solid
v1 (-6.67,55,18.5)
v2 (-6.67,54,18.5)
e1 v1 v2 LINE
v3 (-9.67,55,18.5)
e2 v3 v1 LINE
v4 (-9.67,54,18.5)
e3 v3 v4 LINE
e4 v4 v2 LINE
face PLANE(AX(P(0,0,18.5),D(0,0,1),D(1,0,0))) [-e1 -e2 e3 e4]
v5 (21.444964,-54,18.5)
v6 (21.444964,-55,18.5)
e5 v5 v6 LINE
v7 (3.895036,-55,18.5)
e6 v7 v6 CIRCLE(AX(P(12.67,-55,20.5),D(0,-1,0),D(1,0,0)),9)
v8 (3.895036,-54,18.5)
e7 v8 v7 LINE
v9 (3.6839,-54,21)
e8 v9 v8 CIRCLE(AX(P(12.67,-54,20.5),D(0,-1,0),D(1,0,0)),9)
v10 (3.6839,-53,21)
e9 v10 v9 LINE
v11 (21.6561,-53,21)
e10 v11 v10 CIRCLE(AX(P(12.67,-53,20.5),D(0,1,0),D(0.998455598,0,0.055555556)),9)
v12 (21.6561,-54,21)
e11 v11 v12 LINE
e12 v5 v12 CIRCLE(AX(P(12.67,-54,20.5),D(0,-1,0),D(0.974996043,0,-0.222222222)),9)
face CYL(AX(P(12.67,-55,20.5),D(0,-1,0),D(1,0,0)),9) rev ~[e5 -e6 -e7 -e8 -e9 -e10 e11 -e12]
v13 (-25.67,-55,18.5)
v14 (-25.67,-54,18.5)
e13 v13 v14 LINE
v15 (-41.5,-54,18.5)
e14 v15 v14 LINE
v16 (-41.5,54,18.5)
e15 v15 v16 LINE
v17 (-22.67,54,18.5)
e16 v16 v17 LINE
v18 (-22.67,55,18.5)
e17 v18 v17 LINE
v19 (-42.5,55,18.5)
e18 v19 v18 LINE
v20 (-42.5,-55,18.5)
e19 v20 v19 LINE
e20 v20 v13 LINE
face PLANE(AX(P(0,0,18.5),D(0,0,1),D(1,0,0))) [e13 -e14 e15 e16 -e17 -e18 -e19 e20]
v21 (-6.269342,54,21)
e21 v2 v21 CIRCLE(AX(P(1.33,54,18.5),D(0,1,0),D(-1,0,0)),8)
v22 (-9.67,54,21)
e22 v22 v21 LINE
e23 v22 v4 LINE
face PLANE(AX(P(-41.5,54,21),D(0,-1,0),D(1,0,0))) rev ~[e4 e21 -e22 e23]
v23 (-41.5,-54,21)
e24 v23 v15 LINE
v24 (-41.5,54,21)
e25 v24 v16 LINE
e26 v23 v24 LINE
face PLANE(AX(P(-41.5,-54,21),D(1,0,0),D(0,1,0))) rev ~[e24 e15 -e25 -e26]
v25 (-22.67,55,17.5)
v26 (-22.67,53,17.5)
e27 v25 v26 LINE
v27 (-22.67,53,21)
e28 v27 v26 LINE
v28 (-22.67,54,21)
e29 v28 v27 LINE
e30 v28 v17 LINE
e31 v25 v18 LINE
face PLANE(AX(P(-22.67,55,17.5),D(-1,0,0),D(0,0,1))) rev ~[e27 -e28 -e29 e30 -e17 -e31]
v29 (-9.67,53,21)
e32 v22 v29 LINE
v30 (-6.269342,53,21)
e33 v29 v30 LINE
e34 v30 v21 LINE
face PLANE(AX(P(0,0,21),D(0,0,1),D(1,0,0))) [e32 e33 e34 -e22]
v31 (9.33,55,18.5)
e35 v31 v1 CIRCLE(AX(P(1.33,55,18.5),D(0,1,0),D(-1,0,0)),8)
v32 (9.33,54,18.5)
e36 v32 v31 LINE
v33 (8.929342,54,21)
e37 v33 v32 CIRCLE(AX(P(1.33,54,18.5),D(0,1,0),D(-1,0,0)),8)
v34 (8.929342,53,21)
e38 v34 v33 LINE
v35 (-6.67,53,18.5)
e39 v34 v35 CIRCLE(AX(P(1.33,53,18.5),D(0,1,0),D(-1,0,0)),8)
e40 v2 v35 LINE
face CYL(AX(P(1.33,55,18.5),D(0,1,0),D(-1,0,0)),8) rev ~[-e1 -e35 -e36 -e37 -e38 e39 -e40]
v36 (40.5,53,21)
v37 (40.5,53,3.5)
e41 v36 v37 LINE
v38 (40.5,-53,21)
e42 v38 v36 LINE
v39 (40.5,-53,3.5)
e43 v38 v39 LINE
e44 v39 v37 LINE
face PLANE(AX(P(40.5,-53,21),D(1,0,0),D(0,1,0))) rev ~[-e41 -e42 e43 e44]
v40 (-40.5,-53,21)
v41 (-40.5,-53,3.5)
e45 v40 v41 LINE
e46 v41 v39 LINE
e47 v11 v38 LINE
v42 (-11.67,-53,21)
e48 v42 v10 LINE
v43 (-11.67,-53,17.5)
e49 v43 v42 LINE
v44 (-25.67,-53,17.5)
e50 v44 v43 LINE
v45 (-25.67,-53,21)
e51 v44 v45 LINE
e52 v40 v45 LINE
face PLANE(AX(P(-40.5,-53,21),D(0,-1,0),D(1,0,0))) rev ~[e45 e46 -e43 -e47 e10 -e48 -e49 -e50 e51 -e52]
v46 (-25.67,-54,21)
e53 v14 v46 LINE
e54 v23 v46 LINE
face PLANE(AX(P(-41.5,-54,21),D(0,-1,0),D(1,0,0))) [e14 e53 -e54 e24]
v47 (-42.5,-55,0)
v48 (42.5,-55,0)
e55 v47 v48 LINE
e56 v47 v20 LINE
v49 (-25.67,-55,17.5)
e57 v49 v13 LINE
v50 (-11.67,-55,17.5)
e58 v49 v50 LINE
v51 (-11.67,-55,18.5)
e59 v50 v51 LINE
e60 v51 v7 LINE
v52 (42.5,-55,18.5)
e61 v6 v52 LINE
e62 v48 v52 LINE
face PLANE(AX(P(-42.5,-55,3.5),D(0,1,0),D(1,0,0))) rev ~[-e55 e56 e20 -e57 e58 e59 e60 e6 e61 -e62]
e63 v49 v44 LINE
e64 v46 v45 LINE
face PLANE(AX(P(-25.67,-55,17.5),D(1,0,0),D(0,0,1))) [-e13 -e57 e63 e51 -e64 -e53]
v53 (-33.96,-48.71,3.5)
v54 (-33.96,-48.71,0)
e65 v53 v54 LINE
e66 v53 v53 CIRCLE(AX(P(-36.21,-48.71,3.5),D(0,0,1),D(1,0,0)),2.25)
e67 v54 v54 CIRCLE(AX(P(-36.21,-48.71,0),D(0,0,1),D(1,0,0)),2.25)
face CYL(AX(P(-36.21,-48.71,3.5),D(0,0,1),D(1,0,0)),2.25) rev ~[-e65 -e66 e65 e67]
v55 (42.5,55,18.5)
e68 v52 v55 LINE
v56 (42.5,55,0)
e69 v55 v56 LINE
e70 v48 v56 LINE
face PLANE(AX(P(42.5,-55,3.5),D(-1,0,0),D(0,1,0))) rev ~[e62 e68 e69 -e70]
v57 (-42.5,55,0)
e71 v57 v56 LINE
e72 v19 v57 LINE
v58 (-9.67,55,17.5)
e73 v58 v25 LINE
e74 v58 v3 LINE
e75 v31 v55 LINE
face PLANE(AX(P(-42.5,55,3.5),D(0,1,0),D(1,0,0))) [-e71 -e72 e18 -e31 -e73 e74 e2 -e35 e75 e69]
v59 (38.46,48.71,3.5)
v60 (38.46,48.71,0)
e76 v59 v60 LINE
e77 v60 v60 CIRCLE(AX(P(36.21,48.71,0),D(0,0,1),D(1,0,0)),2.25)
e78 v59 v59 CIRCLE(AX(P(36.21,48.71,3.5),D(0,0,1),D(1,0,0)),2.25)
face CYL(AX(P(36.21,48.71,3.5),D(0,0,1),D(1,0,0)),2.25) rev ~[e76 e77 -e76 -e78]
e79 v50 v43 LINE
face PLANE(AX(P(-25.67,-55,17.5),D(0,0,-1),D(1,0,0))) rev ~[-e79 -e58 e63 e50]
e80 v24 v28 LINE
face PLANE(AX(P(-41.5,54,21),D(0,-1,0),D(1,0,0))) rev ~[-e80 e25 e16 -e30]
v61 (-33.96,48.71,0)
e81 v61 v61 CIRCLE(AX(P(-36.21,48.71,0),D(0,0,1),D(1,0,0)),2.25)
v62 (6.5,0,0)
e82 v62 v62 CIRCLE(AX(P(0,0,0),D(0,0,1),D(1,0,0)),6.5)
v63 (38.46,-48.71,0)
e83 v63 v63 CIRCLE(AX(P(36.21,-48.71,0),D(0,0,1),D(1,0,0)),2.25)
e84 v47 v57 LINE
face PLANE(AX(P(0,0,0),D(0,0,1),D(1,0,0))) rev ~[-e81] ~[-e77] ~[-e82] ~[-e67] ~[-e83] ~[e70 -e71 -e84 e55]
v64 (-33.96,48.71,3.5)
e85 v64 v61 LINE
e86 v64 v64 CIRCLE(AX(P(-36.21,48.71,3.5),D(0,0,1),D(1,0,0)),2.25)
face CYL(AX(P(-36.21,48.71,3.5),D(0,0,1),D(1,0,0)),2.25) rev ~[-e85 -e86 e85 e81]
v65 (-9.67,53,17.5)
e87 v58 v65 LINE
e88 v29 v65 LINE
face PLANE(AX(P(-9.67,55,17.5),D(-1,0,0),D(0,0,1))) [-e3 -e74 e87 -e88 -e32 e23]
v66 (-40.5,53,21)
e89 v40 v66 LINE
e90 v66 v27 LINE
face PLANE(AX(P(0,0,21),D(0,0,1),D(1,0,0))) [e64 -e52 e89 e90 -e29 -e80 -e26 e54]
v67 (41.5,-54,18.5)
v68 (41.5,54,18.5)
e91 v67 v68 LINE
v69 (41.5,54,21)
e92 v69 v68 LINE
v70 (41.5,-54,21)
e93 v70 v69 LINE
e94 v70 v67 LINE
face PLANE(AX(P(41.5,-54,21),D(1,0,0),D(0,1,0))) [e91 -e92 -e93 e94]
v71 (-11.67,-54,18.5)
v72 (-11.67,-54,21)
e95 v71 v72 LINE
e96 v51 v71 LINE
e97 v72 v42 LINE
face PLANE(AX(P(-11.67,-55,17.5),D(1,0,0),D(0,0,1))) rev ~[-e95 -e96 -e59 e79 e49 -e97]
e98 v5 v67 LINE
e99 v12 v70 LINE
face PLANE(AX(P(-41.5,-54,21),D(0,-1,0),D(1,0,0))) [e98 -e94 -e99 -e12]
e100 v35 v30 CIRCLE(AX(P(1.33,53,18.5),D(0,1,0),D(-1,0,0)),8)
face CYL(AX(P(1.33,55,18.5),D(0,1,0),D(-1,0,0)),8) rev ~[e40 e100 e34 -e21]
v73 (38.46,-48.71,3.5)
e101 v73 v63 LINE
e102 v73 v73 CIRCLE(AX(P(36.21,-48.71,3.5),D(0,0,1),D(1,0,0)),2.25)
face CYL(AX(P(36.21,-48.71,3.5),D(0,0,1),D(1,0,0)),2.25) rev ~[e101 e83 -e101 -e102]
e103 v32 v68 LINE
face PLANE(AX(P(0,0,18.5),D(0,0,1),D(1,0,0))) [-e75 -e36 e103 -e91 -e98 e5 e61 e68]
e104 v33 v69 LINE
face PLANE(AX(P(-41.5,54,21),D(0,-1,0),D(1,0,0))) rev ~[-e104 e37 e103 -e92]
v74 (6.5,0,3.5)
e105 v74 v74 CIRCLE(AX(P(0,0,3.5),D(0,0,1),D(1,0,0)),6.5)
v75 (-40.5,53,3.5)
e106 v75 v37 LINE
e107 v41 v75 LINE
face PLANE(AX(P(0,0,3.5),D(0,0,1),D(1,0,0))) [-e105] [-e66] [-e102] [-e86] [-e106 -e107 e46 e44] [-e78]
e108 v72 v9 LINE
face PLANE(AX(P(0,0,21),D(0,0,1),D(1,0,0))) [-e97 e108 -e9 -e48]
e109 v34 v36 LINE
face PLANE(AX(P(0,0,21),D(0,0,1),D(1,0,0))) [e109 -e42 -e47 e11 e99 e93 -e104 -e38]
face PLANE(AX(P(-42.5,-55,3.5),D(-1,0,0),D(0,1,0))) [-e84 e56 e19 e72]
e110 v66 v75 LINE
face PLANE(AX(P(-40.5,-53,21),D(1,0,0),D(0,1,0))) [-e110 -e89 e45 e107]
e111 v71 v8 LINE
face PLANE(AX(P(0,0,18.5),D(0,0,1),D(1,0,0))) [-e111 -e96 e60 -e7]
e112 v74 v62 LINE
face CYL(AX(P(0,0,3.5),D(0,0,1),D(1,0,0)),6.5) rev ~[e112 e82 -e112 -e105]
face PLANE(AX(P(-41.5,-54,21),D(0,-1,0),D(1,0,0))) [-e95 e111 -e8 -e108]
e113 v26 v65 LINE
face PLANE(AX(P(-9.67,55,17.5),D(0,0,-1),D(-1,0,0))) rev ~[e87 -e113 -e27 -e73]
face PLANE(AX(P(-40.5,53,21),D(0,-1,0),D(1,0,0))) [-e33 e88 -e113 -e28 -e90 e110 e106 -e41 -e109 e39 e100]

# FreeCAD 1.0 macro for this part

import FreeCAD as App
import Part
import Sketcher


def add_polygon(sketch, points):
    """Adds a closed chain of lines whose ends are joined by coincident constraints."""
    first, n = sketch.GeometryCount, len(points)
    for a, b in zip(points, points[1:] + points[:1]):
        sketch.addGeometry(Part.LineSegment(App.Vector(*a, 0), App.Vector(*b, 0)), False)
    for i in range(n):
        sketch.addConstraint(Sketcher.Constraint("Coincident", first + i, 2, first + (i + 1) % n, 1))

doc = App.newDocument("Part")
params = doc.addObject("Spreadsheet::Sheet", "Params")
for row, (alias, value) in enumerate([
    ("sketch1_width", "85 mm"),
    ("sketch1_height", "110 mm"),
    ("pad1_length", "3.5 mm"),
    ("sketch2_width", "85 mm"),
    ("sketch2_height", "110 mm"),
    ("pad2_length", "17.5 mm"),
    ("sketch3_width", "81 mm"),
    ("sketch3_height", "106 mm"),
    ("pocket1_length", "17.5 mm"),
    ("sketch4_width", "85 mm"),
    ("sketch4_width2", "83 mm"),
    ("sketch4_height", "110 mm"),
    ("sketch4_height2", "108 mm"),
    ("pocket2_length", "2.5 mm"),
    ("sketch5_diameter", "18 mm"),
    ("sketch5_width", "14 mm"),
    ("sketch5_height", "12 mm"),
    ("pocket3_length", "5 mm"),
    ("sketch6_diameter", "16 mm"),
    ("sketch6_width", "13 mm"),
    ("sketch6_height", "12 mm"),
    ("pocket4_length", "5 mm"),
    ("sketch7_diameter", "4.5 mm"),
    ("pocket5_length", "5 mm"),
    ("sketch8_diameter", "13 mm"),
    ("pocket6_length", "5 mm"),
], start=1):
    params.set(f"A{row}", alias)
    params.set(f"B{row}", "=" + value)
    params.setAlias(f"B{row}", alias)

body = doc.addObject("PartDesign::Body", "Body")

sketch1 = doc.addObject("Sketcher::SketchObject", "Sketch")
body.addObject(sketch1)
sketch1.AttachmentSupport = (doc.XY_Plane, [""])
sketch1.MapMode = "FlatFace"
add_polygon(sketch1, [(-42, 55), (-42, -55), (42, -55), (42, 55)])
sketch1.addConstraint([
    Sketcher.Constraint("Vertical", 0),
    Sketcher.Constraint("Horizontal", 1),
    Sketcher.Constraint("Vertical", 2),
    Sketcher.Constraint("Horizontal", 3),
    Sketcher.Constraint("Symmetric", 0, 2, 2, 2, -1, 1),
    Sketcher.Constraint("DistanceX", 1, 1, 1, 2, 85.0),
    Sketcher.Constraint("DistanceY", 0, 2, 0, 1, 110.0),
])
sketch1.setExpression("Constraints[9]", "Params.sketch1_width")
sketch1.setExpression("Constraints[10]", "Params.sketch1_height")
pad1 = doc.addObject("PartDesign::Pad", "Pad")
body.addObject(pad1)
pad1.Profile = sketch1
pad1.setExpression("Length", "Params.pad1_length")

sketch2 = doc.addObject("Sketcher::SketchObject", "Sketch001")
body.addObject(sketch2)
sketch2.AttachmentSupport = (doc.XY_Plane, [""])
sketch2.MapMode = "FlatFace"
sketch2.AttachmentOffset = App.Placement(App.Vector(0, 0, 3.5), App.Rotation())
add_polygon(sketch2, [(-42, 55), (-42, -55), (42, -55), (42, 55)])
sketch2.addConstraint([
    Sketcher.Constraint("Vertical", 0),
    Sketcher.Constraint("Horizontal", 1),
    Sketcher.Constraint("Vertical", 2),
    Sketcher.Constraint("Horizontal", 3),
    Sketcher.Constraint("Symmetric", 0, 2, 2, 2, -1, 1),
    Sketcher.Constraint("DistanceX", 1, 1, 1, 2, 85.0),
    Sketcher.Constraint("DistanceY", 0, 2, 0, 1, 110.0),
])
sketch2.setExpression("Constraints[9]", "Params.sketch2_width")
sketch2.setExpression("Constraints[10]", "Params.sketch2_height")
pad2 = doc.addObject("PartDesign::Pad", "Pad001")
body.addObject(pad2)
pad2.Profile = sketch2
pad2.setExpression("Length", "Params.pad2_length")

sketch3 = doc.addObject("Sketcher::SketchObject", "Sketch002")
body.addObject(sketch3)
sketch3.AttachmentSupport = (doc.XY_Plane, [""])
sketch3.MapMode = "FlatFace"
sketch3.AttachmentOffset = App.Placement(App.Vector(0, 0, 21), App.Rotation())
add_polygon(sketch3, [(-40, 53), (-40, -53), (40, -53), (40, 53)])
sketch3.addConstraint([
    Sketcher.Constraint("Vertical", 0),
    Sketcher.Constraint("Horizontal", 1),
    Sketcher.Constraint("Vertical", 2),
    Sketcher.Constraint("Horizontal", 3),
    Sketcher.Constraint("Symmetric", 0, 2, 2, 2, -1, 1),
    Sketcher.Constraint("DistanceX", 1, 1, 1, 2, 81.0),
    Sketcher.Constraint("DistanceY", 0, 2, 0, 1, 106.0),
])
sketch3.setExpression("Constraints[9]", "Params.sketch3_width")
sketch3.setExpression("Constraints[10]", "Params.sketch3_height")
pocket1 = doc.addObject("PartDesign::Pocket", "Pocket")
body.addObject(pocket1)
pocket1.Profile = sketch3
pocket1.setExpression("Length", "Params.pocket1_length")

sketch4 = doc.addObject("Sketcher::SketchObject", "Sketch003")
body.addObject(sketch4)
sketch4.AttachmentSupport = (doc.XY_Plane, [""])
sketch4.MapMode = "FlatFace"
sketch4.AttachmentOffset = App.Placement(App.Vector(0, 0, 21), App.Rotation())
add_polygon(sketch4, [(-42, 55), (-42, -55), (42, -55), (42, 55)])
add_polygon(sketch4, [(42, -54), (-42, -54), (-42, 54), (42, 54)])
sketch4.addConstraint([
    Sketcher.Constraint("Vertical", 0),
    Sketcher.Constraint("Horizontal", 1),
    Sketcher.Constraint("Vertical", 2),
    Sketcher.Constraint("Horizontal", 3),
    Sketcher.Constraint("Horizontal", 4),
    Sketcher.Constraint("Vertical", 5),
    Sketcher.Constraint("Horizontal", 6),
    Sketcher.Constraint("Vertical", 7),
    Sketcher.Constraint("Symmetric", 0, 2, 2, 2, -1, 1),
    Sketcher.Constraint("Symmetric", 4, 2, 6, 2, -1, 1),
    Sketcher.Constraint("DistanceX", 1, 1, 1, 2, 85.0),
    Sketcher.Constraint("DistanceX", 4, 2, 4, 1, 83.0),
    Sketcher.Constraint("DistanceY", 0, 2, 0, 1, 110.0),
    Sketcher.Constraint("DistanceY", 5, 1, 5, 2, 108.0),
])
sketch4.setExpression("Constraints[18]", "Params.sketch4_width")
sketch4.setExpression("Constraints[19]", "Params.sketch4_width2")
sketch4.setExpression("Constraints[20]", "Params.sketch4_height")
sketch4.setExpression("Constraints[21]", "Params.sketch4_height2")
pocket2 = doc.addObject("PartDesign::Pocket", "Pocket001")
body.addObject(pocket2)
pocket2.Profile = sketch4
pocket2.setExpression("Length", "Params.pocket2_length")

sketch5 = doc.addObject("Sketcher::SketchObject", "Sketch004")
body.addObject(sketch5)
sketch5.AttachmentSupport = (doc.XZ_Plane, [""])
sketch5.MapMode = "FlatFace"
sketch5.AttachmentOffset = App.Placement(App.Vector(0, 0, 55), App.Rotation())
sketch5.addGeometry(Part.Circle(App.Vector(13, 20, 0), App.Vector(0, 0, 1), 9), False)
add_polygon(sketch5, [(-26, 30), (-26, 18), (-12, 18), (-12, 30)])
sketch5.addConstraint([
    Sketcher.Constraint("Vertical", 1),
    Sketcher.Constraint("Horizontal", 2),
    Sketcher.Constraint("Vertical", 3),
    Sketcher.Constraint("Horizontal", 4),
    Sketcher.Constraint("Diameter", 0, 18.0),
    Sketcher.Constraint("DistanceX", 2, 1, 2, 2, 14.0),
    Sketcher.Constraint("DistanceY", 1, 2, 1, 1, 12.0),
    Sketcher.Constraint("DistanceY", 1, 2, 0, 3, 3.0),
    Sketcher.Constraint("DistanceY", -1, 1, 0, 3, 20.5),
    Sketcher.Constraint("DistanceX", -1, 1, 0, 3, 12.67),
    Sketcher.Constraint("DistanceX", 1, 2, -1, 1, 25.67),
])
sketch5.setExpression("Constraints[8]", "Params.sketch5_diameter")
sketch5.setExpression("Constraints[9]", "Params.sketch5_width")
sketch5.setExpression("Constraints[10]", "Params.sketch5_height")
pocket3 = doc.addObject("PartDesign::Pocket", "Pocket002")
body.addObject(pocket3)
pocket3.Profile = sketch5
pocket3.setExpression("Length", "Params.pocket3_length")

sketch6 = doc.addObject("Sketcher::SketchObject", "Sketch005")
body.addObject(sketch6)
sketch6.AttachmentSupport = (doc.XZ_Plane, [""])
sketch6.MapMode = "FlatFace"
sketch6.AttachmentOffset = App.Placement(App.Vector(0, 0, -55), App.Rotation())
sketch6.addGeometry(Part.Circle(App.Vector(1, 18, 0), App.Vector(0, 0, 1), 8), False)
add_polygon(sketch6, [(-10, 30), (-10, 18), (-23, 18), (-23, 30)])
sketch6.addConstraint([
    Sketcher.Constraint("Vertical", 1),
    Sketcher.Constraint("Horizontal", 2),
    Sketcher.Constraint("Vertical", 3),
    Sketcher.Constraint("Horizontal", 4),
    Sketcher.Constraint("Diameter", 0, 16.0),
    Sketcher.Constraint("DistanceX", 2, 2, 2, 1, 13.0),
    Sketcher.Constraint("DistanceY", 1, 2, 1, 1, 12.0),
    Sketcher.Constraint("DistanceX", 1, 2, 0, 3, 11.0),
    Sketcher.Constraint("DistanceY", 1, 2, 0, 3, 1.0),
    Sketcher.Constraint("DistanceY", -1, 1, 0, 3, 18.5),
    Sketcher.Constraint("DistanceX", -1, 1, 0, 3, 1.33),
])
sketch6.setExpression("Constraints[8]", "Params.sketch6_diameter")
sketch6.setExpression("Constraints[9]", "Params.sketch6_width")
sketch6.setExpression("Constraints[10]", "Params.sketch6_height")
pocket4 = doc.addObject("PartDesign::Pocket", "Pocket003")
body.addObject(pocket4)
pocket4.Profile = sketch6
pocket4.setExpression("Length", "Params.pocket4_length")
pocket4.Reversed = True

sketch7 = doc.addObject("Sketcher::SketchObject", "Sketch006")
body.addObject(sketch7)
sketch7.AttachmentSupport = (doc.XY_Plane, [""])
sketch7.MapMode = "FlatFace"
sketch7.AttachmentOffset = App.Placement(App.Vector(0, 0, 3.5), App.Rotation())
sketch7.addGeometry([
    Part.Circle(App.Vector(-36.2, 48.7, 0), App.Vector(0, 0, 1), 2.2),
    Part.Circle(App.Vector(36.2, 48.7, 0), App.Vector(0, 0, 1), 2.2),
    Part.Circle(App.Vector(-36.2, -48.7, 0), App.Vector(0, 0, 1), 2.2),
    Part.Circle(App.Vector(36.2, -48.7, 0), App.Vector(0, 0, 1), 2.2),
], False)
sketch7.addConstraint([
    Sketcher.Constraint("Equal", 0, 1),
    Sketcher.Constraint("Equal", 1, 2),
    Sketcher.Constraint("Equal", 2, 3),
    Sketcher.Constraint("Symmetric", 1, 3, 2, 3, -1, 1),
    Sketcher.Constraint("Symmetric", 0, 3, 3, 3, -1, 1),
    Sketcher.Constraint("Symmetric", 0, 3, 1, 3, -2),
    Sketcher.Constraint("Diameter", 0, 4.5),
    Sketcher.Constraint("DistanceX", 0, 3, -1, 1, 36.21),
    Sketcher.Constraint("DistanceY", -1, 1, 0, 3, 48.71),
])
sketch7.setExpression("Constraints[6]", "Params.sketch7_diameter")
pocket5 = doc.addObject("PartDesign::Pocket", "Pocket004")
body.addObject(pocket5)
pocket5.Profile = sketch7
pocket5.setExpression("Length", "Params.pocket5_length")

sketch8 = doc.addObject("Sketcher::SketchObject", "Sketch007")
body.addObject(sketch8)
sketch8.AttachmentSupport = (doc.XY_Plane, [""])
sketch8.MapMode = "FlatFace"
sketch8.AttachmentOffset = App.Placement(App.Vector(0, 0, 3.5), App.Rotation())
sketch8.addGeometry(Part.Circle(App.Vector(0, 0, 0), App.Vector(0, 0, 1), 6), False)
sketch8.addConstraint([
    Sketcher.Constraint("Coincident", 0, 3, -1, 1),
    Sketcher.Constraint("Diameter", 0, 13.0),
])
sketch8.setExpression("Constraints[1]", "Params.sketch8_diameter")
pocket6 = doc.addObject("PartDesign::Pocket", "Pocket005")
body.addObject(pocket6)
pocket6.Profile = sketch8
pocket6.setExpression("Length", "Params.pocket6_length")

doc.recompute()
